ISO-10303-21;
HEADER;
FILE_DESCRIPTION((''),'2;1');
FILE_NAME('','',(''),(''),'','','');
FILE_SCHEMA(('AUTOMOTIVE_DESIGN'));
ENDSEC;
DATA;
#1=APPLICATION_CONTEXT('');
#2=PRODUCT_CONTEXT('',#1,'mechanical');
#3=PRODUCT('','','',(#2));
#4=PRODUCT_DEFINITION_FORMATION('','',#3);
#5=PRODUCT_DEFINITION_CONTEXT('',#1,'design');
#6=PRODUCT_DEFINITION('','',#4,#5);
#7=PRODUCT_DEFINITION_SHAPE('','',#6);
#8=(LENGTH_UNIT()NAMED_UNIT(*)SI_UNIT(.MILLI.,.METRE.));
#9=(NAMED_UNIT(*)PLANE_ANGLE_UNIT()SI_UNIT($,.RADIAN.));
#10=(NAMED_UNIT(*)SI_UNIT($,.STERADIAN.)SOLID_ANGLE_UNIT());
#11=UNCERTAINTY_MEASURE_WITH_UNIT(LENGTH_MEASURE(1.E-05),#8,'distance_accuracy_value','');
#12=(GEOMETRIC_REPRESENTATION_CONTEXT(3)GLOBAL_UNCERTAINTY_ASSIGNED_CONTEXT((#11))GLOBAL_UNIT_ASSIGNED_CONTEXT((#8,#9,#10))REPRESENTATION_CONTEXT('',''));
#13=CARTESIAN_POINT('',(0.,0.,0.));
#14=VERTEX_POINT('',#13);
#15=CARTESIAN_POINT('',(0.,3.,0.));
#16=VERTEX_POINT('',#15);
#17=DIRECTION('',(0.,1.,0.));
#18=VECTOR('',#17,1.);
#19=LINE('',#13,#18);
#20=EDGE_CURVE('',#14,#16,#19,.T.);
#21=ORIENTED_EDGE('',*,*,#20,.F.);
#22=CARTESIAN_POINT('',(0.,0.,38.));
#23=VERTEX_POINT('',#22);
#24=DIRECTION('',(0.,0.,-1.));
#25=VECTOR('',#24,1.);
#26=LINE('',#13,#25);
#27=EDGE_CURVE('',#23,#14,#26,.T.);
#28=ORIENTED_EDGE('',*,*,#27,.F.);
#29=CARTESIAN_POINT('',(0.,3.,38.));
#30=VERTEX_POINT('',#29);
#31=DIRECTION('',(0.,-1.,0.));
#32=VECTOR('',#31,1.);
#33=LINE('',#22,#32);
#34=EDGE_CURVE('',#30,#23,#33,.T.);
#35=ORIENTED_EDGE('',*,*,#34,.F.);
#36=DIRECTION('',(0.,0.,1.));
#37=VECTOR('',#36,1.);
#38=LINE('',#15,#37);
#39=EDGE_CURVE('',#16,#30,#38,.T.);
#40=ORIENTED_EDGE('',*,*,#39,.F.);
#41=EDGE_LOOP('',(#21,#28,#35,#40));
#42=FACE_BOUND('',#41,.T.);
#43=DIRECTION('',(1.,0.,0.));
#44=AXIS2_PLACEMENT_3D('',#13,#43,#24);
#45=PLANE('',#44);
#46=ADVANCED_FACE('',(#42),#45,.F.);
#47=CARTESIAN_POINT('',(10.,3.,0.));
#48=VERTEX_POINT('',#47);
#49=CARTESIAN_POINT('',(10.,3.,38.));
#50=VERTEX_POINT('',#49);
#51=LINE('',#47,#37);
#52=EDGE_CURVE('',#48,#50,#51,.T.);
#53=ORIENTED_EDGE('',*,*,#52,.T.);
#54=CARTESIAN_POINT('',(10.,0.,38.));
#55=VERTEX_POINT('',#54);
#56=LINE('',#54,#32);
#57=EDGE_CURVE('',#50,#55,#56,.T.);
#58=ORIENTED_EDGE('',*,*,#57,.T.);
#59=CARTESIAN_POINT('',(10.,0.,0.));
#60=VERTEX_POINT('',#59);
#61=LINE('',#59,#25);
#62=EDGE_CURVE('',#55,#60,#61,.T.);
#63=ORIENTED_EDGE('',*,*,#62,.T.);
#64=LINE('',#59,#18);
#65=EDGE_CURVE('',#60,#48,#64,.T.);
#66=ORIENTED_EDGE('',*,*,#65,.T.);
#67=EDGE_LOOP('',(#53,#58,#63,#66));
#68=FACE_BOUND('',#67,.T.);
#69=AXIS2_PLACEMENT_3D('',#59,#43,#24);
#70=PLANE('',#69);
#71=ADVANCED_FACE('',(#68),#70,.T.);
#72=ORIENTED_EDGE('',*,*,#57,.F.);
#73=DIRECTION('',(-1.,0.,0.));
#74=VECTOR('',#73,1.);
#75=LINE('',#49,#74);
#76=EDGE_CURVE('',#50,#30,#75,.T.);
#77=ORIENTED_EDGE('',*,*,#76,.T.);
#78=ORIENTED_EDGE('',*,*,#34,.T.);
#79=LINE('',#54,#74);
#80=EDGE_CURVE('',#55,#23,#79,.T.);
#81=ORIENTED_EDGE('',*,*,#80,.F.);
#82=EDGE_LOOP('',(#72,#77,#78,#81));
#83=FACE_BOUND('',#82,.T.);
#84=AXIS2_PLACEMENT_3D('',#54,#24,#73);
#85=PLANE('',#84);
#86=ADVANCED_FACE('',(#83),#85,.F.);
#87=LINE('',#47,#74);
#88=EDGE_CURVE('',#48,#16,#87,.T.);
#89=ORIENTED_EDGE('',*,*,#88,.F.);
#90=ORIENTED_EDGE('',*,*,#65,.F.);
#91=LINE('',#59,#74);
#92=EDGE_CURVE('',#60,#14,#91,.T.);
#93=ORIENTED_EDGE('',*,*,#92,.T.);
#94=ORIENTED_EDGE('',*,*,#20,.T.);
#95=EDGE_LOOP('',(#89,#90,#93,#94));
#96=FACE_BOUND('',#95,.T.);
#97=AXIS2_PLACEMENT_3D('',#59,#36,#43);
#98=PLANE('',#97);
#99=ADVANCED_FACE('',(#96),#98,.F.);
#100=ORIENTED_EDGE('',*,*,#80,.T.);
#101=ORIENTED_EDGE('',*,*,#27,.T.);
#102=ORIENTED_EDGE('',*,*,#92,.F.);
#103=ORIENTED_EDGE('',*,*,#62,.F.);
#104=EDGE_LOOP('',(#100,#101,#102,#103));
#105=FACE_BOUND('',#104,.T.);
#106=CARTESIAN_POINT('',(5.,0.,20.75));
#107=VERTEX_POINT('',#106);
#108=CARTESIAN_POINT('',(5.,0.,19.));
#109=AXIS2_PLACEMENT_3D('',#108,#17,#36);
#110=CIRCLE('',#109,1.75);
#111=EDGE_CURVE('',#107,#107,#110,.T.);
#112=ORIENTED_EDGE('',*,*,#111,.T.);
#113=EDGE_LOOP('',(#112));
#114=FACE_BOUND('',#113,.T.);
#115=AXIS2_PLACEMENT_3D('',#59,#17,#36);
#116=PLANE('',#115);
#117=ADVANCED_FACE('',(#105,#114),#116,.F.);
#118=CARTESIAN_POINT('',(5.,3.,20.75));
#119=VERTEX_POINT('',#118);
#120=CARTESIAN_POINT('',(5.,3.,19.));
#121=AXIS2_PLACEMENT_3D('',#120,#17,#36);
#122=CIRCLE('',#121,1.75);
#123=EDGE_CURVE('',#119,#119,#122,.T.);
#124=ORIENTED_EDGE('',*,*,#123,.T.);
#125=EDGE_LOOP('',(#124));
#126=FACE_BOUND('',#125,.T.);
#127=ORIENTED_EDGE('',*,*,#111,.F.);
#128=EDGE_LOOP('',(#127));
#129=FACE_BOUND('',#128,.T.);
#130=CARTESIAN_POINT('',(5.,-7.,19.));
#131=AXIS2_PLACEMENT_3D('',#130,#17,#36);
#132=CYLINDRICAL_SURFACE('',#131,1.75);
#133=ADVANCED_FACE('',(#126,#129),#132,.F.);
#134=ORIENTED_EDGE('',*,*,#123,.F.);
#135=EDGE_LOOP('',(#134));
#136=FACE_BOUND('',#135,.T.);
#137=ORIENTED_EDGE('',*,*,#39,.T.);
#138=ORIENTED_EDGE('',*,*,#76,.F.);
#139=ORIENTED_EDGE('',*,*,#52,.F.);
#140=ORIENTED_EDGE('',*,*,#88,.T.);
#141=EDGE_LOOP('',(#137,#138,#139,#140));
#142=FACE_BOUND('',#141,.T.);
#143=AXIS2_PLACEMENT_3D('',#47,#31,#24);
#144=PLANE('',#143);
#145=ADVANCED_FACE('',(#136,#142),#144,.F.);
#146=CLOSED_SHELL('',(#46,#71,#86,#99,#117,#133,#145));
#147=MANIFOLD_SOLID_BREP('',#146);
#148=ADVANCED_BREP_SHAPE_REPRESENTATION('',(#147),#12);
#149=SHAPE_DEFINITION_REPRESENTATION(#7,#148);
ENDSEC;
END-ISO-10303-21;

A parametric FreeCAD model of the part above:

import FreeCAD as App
import Part
import Sketcher

V = App.Vector

doc = App.newDocument("Part")
body = doc.addObject("PartDesign::Body", "Body")

sketch1 = body.newObject("Sketcher::SketchObject", "Sketch")
sketch1.AttachmentSupport = (doc.getObject("YZ_Plane"), [""])
sketch1.MapMode = "FlatFace"
sketch1.addGeometry([
    Part.LineSegment(V(3, 38, 0), V(0, 38, 0)),
    Part.LineSegment(V(0, 38, 0), V(0, 0, 0)),
    Part.LineSegment(V(0, 0, 0), V(3, 0, 0)),
    Part.LineSegment(V(3, 0, 0), V(3, 38, 0)),
], False)
sketch1.addConstraint([
    Sketcher.Constraint("Coincident", 0, 2, 1, 1),
    Sketcher.Constraint("Coincident", 1, 2, 2, 1),
    Sketcher.Constraint("Coincident", 2, 2, 3, 1),
    Sketcher.Constraint("Coincident", 3, 2, 0, 1),
    Sketcher.Constraint("Horizontal", 0),
    Sketcher.Constraint("Vertical", 1),
    Sketcher.Constraint("Horizontal", 2),
    Sketcher.Constraint("Vertical", 3),
    Sketcher.Constraint("Coincident", 1, 2, -1, 1),
    Sketcher.Constraint("DistanceX", 0, 2, 0, 1, 3.0),
    Sketcher.Constraint("DistanceY", 1, 2, 1, 1, 38.0),
])
pad1 = body.newObject("PartDesign::Pad", "Pad")
pad1.Profile = sketch1
pad1.Length = 10

sketch2 = body.newObject("Sketcher::SketchObject", "Sketch001")
sketch2.AttachmentSupport = (doc.getObject("XZ_Plane"), [""])
sketch2.MapMode = "FlatFace"
sketch2.AttachmentOffset = App.Placement(V(0, 0, -3), App.Rotation())
sketch2.addGeometry(Part.Circle(V(5, 19, 0), V(0, 0, 1), 1.8), False)
sketch2.addConstraint([
    Sketcher.Constraint("Diameter", 0, 3.5),
    Sketcher.Constraint("DistanceX", -1, 1, 0, 3, 5.0),
    Sketcher.Constraint("DistanceY", -1, 1, 0, 3, 19.0),
])
pocket1 = body.newObject("PartDesign::Pocket", "Pocket")
pocket1.Profile = sketch2
pocket1.Length = 10
pocket1.Reversed = True

doc.recompute()
